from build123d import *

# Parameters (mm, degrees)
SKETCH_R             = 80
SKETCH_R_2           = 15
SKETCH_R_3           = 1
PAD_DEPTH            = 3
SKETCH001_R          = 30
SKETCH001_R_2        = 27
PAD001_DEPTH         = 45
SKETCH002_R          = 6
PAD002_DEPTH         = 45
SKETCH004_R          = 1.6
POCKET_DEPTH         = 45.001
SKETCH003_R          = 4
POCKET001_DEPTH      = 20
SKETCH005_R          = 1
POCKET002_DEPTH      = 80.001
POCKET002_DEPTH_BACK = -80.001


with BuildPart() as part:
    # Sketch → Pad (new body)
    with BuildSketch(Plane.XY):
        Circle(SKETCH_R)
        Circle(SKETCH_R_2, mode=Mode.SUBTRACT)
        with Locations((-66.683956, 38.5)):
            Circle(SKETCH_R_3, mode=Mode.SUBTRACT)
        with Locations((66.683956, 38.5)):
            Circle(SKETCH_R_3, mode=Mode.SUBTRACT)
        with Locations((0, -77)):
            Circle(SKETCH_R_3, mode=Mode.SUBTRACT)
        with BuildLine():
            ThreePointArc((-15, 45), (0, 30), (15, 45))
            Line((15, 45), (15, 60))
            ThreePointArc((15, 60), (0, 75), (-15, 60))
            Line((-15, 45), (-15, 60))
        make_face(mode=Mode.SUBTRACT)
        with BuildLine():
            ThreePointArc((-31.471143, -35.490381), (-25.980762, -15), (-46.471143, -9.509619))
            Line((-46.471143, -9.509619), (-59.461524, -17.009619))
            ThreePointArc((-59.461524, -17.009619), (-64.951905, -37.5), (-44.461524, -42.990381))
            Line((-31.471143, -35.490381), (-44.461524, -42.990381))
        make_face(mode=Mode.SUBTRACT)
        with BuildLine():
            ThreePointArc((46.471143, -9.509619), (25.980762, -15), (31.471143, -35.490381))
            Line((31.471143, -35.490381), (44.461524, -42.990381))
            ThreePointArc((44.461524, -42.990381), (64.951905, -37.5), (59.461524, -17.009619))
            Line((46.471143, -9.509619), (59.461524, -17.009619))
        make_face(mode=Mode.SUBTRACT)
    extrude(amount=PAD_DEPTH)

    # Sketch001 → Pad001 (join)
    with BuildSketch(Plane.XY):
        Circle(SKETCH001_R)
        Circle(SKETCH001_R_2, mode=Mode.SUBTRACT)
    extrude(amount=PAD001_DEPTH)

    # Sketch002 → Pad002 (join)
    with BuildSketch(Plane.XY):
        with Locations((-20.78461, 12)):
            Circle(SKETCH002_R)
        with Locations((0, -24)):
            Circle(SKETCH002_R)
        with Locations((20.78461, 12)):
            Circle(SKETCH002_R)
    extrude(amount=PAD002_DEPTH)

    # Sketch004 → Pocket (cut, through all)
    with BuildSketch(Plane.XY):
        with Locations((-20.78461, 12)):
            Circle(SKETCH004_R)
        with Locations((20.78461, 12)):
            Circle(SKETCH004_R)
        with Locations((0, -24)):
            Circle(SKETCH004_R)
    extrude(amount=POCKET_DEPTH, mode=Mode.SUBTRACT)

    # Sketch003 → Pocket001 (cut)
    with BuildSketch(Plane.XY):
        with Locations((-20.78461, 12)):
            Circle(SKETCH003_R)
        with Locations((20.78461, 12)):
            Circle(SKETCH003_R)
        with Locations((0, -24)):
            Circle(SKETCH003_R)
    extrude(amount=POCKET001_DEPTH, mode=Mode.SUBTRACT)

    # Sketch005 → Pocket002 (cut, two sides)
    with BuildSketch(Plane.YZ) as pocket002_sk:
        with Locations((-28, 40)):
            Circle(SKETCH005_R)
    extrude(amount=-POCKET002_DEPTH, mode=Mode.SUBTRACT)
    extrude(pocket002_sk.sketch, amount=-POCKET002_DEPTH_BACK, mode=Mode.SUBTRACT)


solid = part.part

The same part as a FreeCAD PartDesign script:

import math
import FreeCAD as App
import Part
import Sketcher
Q = App.Units.Quantity

doc = App.newDocument("Part")
body = doc.addObject("PartDesign::Body", "Body")

sketch1 = body.newObject("Sketcher::SketchObject", "Sketch")
sketch1.AttachmentSupport = (doc.getObject("XY_Plane"), [""])
sketch1.MapMode = "FlatFace"
sketch1.addGeometry([
    Part.Circle(App.Vector(0, 0, 0), App.Vector(0, 0, 1), 80),
    Part.ArcOfCircle(Part.Circle(App.Vector(-38.971143, -22.5, 0), App.Vector(0, 0, 1), 15), math.radians(-60), math.radians(120)),
    Part.LineSegment(App.Vector(-31.471143, -35.490381, 0), App.Vector(-44.461524, -42.990381, 0)),
    Part.ArcOfCircle(Part.Circle(App.Vector(-51.961524, -30, 0), App.Vector(0, 0, 1), 15), math.radians(120), math.radians(300)),
    Part.LineSegment(App.Vector(-59.461524, -17.009619, 0), App.Vector(-46.471143, -9.509619, 0)),
    Part.Circle(App.Vector(0, -77, 0), App.Vector(0, 0, 1), 1),
    Part.ArcOfCircle(Part.Circle(App.Vector(38.971143, -22.5, 0), App.Vector(0, 0, 1), 15), math.radians(60), math.radians(240)),
    Part.LineSegment(App.Vector(46.471143, -9.509619, 0), App.Vector(59.461524, -17.009619, 0)),
    Part.ArcOfCircle(Part.Circle(App.Vector(51.961524, -30, 0), App.Vector(0, 0, 1), 15), math.radians(-120), math.radians(60)),
    Part.LineSegment(App.Vector(44.461524, -42.990381, 0), App.Vector(31.471143, -35.490381, 0)),
    Part.Circle(App.Vector(-66.683956, 38.5, 0), App.Vector(0, 0, 1), 1),
    Part.Circle(App.Vector(0, 0, 0), App.Vector(0, 0, 1), 15),
    Part.ArcOfCircle(Part.Circle(App.Vector(0, 45, 0), App.Vector(0, 0, 1), 15), math.radians(180), math.radians(360)),
    Part.LineSegment(App.Vector(-15, 45, 0), App.Vector(-15, 60, 0)),
    Part.ArcOfCircle(Part.Circle(App.Vector(0, 60, 0), App.Vector(0, 0, 1), 15), math.radians(0), math.radians(180)),
    Part.LineSegment(App.Vector(15, 60, 0), App.Vector(15, 45, 0)),
    Part.Circle(App.Vector(66.683956, 38.5, 0), App.Vector(0, 0, 1), 1),
], False)
sketch1.addConstraint([
    Sketcher.Constraint("Tangent", 1, 1, 2, 1),
    Sketcher.Constraint("Tangent", 2, 2, 3, 2),
    Sketcher.Constraint("Tangent", 3, 1, 4, 1),
    Sketcher.Constraint("Tangent", 4, 2, 1, 2),
    Sketcher.Constraint("Tangent", 6, 1, 7, 1),
    Sketcher.Constraint("Tangent", 7, 2, 8, 2),
    Sketcher.Constraint("Tangent", 8, 1, 9, 1),
    Sketcher.Constraint("Tangent", 9, 2, 6, 2),
    Sketcher.Constraint("Tangent", 12, 1, 13, 1),
    Sketcher.Constraint("Tangent", 13, 2, 14, 2),
    Sketcher.Constraint("Tangent", 14, 1, 15, 1),
    Sketcher.Constraint("Tangent", 15, 2, 12, 2),
    Sketcher.Constraint("Vertical", 13),
    Sketcher.Constraint("Vertical", 15),
    Sketcher.Constraint("Coincident", 0, 3, -1, 1),
    Sketcher.Constraint("Coincident", 11, 3, -1, 1),
    Sketcher.Constraint("Equal", 1, 3),
    Sketcher.Constraint("Equal", 3, 6),
    Sketcher.Constraint("Equal", 6, 8),
    Sketcher.Constraint("Equal", 5, 10),
    Sketcher.Constraint("Equal", 8, 11),
    Sketcher.Constraint("Equal", 11, 12),
    Sketcher.Constraint("Equal", 10, 16),
    Sketcher.Constraint("Symmetric", 1, 3, 6, 3, -2),
    Sketcher.Constraint("Symmetric", 3, 3, 8, 3, -2),
    Sketcher.Constraint("Symmetric", 10, 3, 16, 3, -2),
    Sketcher.Constraint("PointOnObject", 5, 3, -2),
    Sketcher.Constraint("PointOnObject", 12, 3, -2),
    Sketcher.Constraint("Diameter", 0, 160.0),
    Sketcher.Constraint("Diameter", 5, 2.0),
    Sketcher.Constraint("Diameter", 11, 30.0),
    Sketcher.Constraint("DistanceY", 13, 1, 13, 2, 15.0),
    Sketcher.Constraint("Angle", 2, Q("-150 deg")),
    Sketcher.Constraint("Distance", 2, 15.0),
    Sketcher.Constraint("DistanceY", 3, 3, -1, 1, 30.0),
    Sketcher.Constraint("DistanceY", 5, 3, -1, 1, 77.0),
    Sketcher.Constraint("DistanceY", -1, 1, 12, 3, 45.0),
    Sketcher.Constraint("DistanceY", 1, 3, 10, 3, 61.0),
    Sketcher.Constraint("DistanceX", 10, 3, 6, 3, 105.655099),
    Sketcher.Constraint("DistanceX", 10, 3, 3, 3, 14.722432),
])
pad1 = body.newObject("PartDesign::Pad", "Pad")
pad1.Profile = sketch1
pad1.Length = 3

sketch2 = body.newObject("Sketcher::SketchObject", "Sketch001")
sketch2.AttachmentSupport = (doc.getObject("XY_Plane"), [""])
sketch2.MapMode = "FlatFace"
sketch2.addGeometry([
    Part.Circle(App.Vector(0, 0, 0), App.Vector(0, 0, 1), 30),
    Part.Circle(App.Vector(0, 0, 0), App.Vector(0, 0, 1), 27),
], False)
sketch2.addConstraint([
    Sketcher.Constraint("Coincident", 0, 3, -1, 1),
    Sketcher.Constraint("Coincident", 1, 3, -1, 1),
    Sketcher.Constraint("Diameter", 0, 60.0),
    Sketcher.Constraint("Diameter", 1, 54.0),
])
pad2 = body.newObject("PartDesign::Pad", "Pad001")
pad2.Profile = sketch2
pad2.Length = 45

sketch3 = body.newObject("Sketcher::SketchObject", "Sketch002")
sketch3.AttachmentSupport = (doc.getObject("XY_Plane"), [""])
sketch3.MapMode = "FlatFace"
sketch3.addGeometry([
    Part.Circle(App.Vector(-20.78461, 12, 0), App.Vector(0, 0, 1), 6),
    Part.Circle(App.Vector(0, -24, 0), App.Vector(0, 0, 1), 6),
    Part.Circle(App.Vector(20.78461, 12, 0), App.Vector(0, 0, 1), 6),
], False)
sketch3.addConstraint([
    Sketcher.Constraint("Equal", 0, 1),
    Sketcher.Constraint("Equal", 1, 2),
    Sketcher.Constraint("Symmetric", 0, 3, 2, 3, -2),
    Sketcher.Constraint("PointOnObject", 1, 3, -2),
    Sketcher.Constraint("Diameter", 0, 12.0),
    Sketcher.Constraint("DistanceY", -1, 1, 0, 3, 12.0),
    Sketcher.Constraint("DistanceY", 1, 3, -1, 1, 24.0),
    Sketcher.Constraint("DistanceX", 0, 3, -1, 1, 20.78461),
])
pad3 = body.newObject("PartDesign::Pad", "Pad002")
pad3.Profile = sketch3
pad3.Length = 45

sketch4 = body.newObject("Sketcher::SketchObject", "Sketch003")
sketch4.AttachmentSupport = (doc.getObject("XY_Plane"), [""])
sketch4.MapMode = "FlatFace"
sketch4.addGeometry([
    Part.Circle(App.Vector(-20.78461, 12, 0), App.Vector(0, 0, 1), 1.6),
    Part.Circle(App.Vector(20.78461, 12, 0), App.Vector(0, 0, 1), 1.6),
    Part.Circle(App.Vector(0, -24, 0), App.Vector(0, 0, 1), 1.6),
], False)
sketch4.addConstraint([
    Sketcher.Constraint("Equal", 0, 1),
    Sketcher.Constraint("Equal", 1, 2),
    Sketcher.Constraint("Symmetric", 0, 3, 1, 3, -2),
    Sketcher.Constraint("PointOnObject", 2, 3, -2),
    Sketcher.Constraint("Diameter", 0, 3.2),
    Sketcher.Constraint("DistanceY", -1, 1, 0, 3, 12.0),
    Sketcher.Constraint("DistanceY", 2, 3, -1, 1, 24.0),
    Sketcher.Constraint("DistanceX", 0, 3, -1, 1, 20.78461),
])
pocket1 = body.newObject("PartDesign::Pocket", "Pocket")
pocket1.Profile = sketch4
pocket1.Type = "ThroughAll"
pocket1.Reversed = True

sketch5 = body.newObject("Sketcher::SketchObject", "Sketch004")
sketch5.AttachmentSupport = (doc.getObject("XY_Plane"), [""])
sketch5.MapMode = "FlatFace"
sketch5.addGeometry([
    Part.Circle(App.Vector(-20.78461, 12, 0), App.Vector(0, 0, 1), 4),
    Part.Circle(App.Vector(20.78461, 12, 0), App.Vector(0, 0, 1), 4),
    Part.Circle(App.Vector(0, -24, 0), App.Vector(0, 0, 1), 4),
], False)
sketch5.addConstraint([
    Sketcher.Constraint("Equal", 0, 1),
    Sketcher.Constraint("Equal", 1, 2),
    Sketcher.Constraint("Symmetric", 0, 3, 1, 3, -2),
    Sketcher.Constraint("PointOnObject", 2, 3, -2),
    Sketcher.Constraint("Diameter", 0, 8.0),
    Sketcher.Constraint("DistanceY", -1, 1, 0, 3, 12.0),
    Sketcher.Constraint("DistanceY", 2, 3, -1, 1, 24.0),
    Sketcher.Constraint("DistanceX", 0, 3, -1, 1, 20.78461),
])
pocket2 = body.newObject("PartDesign::Pocket", "Pocket001")
pocket2.Profile = sketch5
pocket2.Length = 20
pocket2.Reversed = True

sketch6 = body.newObject("Sketcher::SketchObject", "Sketch005")
sketch6.AttachmentSupport = (doc.getObject("YZ_Plane"), [""])
sketch6.MapMode = "FlatFace"
sketch6.addGeometry(Part.Circle(App.Vector(-28, 40, 0), App.Vector(0, 0, 1), 1), False)
sketch6.addConstraint([
    Sketcher.Constraint("Diameter", 0, 2.0),
    Sketcher.Constraint("DistanceX", 0, 3, -1, 1, 28.0),
    Sketcher.Constraint("DistanceY", -1, 1, 0, 3, 40.0),
])
pocket3 = body.newObject("PartDesign::Pocket", "Pocket002")
pocket3.Profile = sketch6
pocket3.Type = "ThroughAll"
pocket3.Midplane = True

doc.recompute()
